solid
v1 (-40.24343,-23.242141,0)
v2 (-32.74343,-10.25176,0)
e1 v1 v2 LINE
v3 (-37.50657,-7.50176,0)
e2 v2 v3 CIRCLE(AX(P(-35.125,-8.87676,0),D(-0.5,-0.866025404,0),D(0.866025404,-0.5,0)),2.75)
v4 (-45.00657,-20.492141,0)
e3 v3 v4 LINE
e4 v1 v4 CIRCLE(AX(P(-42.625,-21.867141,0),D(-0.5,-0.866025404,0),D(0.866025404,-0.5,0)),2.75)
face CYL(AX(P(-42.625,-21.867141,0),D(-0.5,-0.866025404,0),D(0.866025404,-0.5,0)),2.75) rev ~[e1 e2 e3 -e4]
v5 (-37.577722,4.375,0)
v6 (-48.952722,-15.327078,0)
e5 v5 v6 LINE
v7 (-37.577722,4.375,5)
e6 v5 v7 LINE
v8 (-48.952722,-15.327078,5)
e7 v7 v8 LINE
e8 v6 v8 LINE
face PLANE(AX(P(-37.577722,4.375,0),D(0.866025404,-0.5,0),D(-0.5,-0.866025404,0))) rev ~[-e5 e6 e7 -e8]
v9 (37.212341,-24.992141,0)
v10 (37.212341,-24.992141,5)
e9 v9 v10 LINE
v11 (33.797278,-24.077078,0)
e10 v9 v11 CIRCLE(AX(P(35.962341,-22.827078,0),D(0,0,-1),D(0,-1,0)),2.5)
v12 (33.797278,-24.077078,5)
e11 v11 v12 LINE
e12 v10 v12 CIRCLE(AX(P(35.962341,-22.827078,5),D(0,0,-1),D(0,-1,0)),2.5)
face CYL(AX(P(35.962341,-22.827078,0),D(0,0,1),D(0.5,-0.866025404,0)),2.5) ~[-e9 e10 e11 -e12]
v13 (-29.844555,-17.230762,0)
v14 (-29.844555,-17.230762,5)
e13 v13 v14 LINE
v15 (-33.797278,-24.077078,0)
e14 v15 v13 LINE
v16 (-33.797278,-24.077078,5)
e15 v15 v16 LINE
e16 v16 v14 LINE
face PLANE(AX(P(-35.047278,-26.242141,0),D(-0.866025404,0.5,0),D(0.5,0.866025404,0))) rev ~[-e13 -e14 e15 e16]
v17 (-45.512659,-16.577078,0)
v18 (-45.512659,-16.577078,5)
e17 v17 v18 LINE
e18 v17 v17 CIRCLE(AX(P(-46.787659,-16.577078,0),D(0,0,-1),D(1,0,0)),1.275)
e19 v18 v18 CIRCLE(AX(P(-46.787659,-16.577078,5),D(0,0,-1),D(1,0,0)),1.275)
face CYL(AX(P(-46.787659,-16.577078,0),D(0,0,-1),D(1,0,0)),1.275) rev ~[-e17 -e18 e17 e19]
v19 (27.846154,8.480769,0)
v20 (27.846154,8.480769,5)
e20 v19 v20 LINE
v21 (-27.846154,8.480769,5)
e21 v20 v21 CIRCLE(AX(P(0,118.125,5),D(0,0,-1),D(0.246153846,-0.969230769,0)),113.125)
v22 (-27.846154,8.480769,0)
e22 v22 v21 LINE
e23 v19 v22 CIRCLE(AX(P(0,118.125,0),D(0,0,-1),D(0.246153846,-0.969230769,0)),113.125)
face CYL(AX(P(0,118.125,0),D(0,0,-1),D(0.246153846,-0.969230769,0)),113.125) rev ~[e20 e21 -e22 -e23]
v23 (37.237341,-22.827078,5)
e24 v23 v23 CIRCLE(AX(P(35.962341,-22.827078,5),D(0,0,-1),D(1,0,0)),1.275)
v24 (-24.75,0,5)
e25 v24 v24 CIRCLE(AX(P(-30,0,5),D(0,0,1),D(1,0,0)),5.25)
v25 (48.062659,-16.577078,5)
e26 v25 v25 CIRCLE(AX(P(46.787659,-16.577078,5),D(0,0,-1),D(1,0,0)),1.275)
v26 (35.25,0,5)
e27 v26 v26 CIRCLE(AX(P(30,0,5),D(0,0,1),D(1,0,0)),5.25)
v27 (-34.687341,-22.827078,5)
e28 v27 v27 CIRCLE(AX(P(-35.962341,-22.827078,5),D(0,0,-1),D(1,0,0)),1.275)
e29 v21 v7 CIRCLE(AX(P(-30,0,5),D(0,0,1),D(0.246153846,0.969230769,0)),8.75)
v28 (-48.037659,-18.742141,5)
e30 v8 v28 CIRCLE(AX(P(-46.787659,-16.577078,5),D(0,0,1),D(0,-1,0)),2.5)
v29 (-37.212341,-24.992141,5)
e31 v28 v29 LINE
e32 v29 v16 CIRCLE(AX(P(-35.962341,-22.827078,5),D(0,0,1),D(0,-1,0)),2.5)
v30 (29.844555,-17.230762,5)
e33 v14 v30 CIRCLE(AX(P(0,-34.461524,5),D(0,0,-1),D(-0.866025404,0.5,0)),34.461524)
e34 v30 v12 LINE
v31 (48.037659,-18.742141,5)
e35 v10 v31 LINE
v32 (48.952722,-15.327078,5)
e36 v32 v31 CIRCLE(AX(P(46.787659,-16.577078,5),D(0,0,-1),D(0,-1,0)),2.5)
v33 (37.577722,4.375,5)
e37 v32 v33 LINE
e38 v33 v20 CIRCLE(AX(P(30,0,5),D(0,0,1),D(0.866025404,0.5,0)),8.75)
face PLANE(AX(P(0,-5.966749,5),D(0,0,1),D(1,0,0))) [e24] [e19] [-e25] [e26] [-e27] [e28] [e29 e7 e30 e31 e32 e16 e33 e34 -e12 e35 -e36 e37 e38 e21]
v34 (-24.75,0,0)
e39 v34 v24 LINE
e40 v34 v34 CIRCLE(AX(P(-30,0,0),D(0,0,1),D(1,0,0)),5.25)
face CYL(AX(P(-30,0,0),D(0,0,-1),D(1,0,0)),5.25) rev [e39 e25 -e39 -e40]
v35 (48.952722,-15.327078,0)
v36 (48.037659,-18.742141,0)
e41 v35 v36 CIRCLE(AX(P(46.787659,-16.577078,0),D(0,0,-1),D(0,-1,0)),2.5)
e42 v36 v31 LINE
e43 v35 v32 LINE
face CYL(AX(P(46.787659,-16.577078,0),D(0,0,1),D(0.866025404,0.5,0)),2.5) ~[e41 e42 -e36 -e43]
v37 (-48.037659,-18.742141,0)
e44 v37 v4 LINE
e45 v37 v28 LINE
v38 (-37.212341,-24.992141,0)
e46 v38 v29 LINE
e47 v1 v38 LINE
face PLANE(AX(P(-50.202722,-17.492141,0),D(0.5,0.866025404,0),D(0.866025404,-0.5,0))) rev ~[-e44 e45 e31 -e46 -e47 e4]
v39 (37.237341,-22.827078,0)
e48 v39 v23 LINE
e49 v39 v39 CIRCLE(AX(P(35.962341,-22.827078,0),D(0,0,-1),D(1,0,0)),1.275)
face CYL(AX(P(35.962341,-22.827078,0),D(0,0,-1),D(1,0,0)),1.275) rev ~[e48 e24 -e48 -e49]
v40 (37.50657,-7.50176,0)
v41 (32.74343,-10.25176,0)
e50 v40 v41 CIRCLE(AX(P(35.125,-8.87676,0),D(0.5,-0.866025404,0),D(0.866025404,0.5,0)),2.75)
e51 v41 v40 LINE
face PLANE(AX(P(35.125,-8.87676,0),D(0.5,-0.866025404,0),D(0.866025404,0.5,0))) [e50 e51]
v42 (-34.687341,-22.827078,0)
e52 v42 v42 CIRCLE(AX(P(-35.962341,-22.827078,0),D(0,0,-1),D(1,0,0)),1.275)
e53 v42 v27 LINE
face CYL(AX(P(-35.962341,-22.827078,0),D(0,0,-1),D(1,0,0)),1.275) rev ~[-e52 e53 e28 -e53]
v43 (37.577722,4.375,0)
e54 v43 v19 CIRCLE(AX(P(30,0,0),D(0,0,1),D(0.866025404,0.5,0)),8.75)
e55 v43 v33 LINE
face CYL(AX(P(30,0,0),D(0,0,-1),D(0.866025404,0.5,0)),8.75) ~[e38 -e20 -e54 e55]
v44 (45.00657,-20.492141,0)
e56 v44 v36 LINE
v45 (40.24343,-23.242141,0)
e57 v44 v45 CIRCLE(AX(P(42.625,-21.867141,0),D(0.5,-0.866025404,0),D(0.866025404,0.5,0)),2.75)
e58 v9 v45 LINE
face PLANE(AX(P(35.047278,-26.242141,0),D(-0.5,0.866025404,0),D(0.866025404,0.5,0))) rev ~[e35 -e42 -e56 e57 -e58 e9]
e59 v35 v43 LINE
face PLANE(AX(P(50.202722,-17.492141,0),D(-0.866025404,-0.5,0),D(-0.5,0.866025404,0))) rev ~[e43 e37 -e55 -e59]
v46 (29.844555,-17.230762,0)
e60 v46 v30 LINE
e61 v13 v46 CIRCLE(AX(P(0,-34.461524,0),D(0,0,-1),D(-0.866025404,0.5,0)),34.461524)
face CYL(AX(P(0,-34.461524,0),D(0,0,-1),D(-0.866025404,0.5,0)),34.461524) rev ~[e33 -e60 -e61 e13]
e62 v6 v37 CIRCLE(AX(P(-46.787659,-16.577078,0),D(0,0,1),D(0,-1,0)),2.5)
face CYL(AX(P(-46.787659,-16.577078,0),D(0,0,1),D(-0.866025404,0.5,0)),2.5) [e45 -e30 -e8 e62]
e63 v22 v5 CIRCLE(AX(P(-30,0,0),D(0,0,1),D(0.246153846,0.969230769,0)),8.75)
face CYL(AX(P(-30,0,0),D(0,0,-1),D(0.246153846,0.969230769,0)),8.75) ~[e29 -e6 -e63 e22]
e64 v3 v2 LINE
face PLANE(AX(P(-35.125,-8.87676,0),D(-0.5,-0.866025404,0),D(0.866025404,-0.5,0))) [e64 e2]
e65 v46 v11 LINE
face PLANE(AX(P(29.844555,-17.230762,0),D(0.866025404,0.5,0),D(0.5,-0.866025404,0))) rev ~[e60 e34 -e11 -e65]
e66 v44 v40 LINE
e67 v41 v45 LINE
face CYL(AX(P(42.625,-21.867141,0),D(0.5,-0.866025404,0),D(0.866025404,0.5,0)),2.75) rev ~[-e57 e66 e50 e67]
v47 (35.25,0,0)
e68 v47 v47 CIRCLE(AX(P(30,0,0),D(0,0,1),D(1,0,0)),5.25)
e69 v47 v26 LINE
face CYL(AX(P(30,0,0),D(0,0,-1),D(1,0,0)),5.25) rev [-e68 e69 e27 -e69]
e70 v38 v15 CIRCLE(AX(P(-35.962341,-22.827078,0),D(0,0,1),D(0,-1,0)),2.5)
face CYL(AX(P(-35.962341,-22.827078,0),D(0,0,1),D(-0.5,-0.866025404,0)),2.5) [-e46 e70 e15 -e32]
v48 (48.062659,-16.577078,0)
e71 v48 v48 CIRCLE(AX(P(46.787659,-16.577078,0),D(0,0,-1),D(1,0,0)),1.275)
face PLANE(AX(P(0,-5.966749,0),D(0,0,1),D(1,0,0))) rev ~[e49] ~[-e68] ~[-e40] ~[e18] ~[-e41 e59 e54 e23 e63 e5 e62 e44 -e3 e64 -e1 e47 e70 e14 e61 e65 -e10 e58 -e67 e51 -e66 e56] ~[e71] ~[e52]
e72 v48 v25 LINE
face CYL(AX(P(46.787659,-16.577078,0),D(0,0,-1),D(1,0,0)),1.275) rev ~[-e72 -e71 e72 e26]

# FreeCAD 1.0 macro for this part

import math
import FreeCAD as App
import Part
import Sketcher

V = App.Vector
Q = App.Units.Quantity


def edges_at(feature, points):
    """Names of the edges that pass closest to the given points."""
    edges = feature.Shape.Edges
    near = lambda p: min(range(len(edges)), key=lambda i: edges[i].distToShape(Part.Vertex(*p))[0])
    return sorted({f"Edge{near(p) + 1}" for p in points})

doc = App.newDocument("Part")
body = doc.addObject("PartDesign::Body", "Body")

sketch1 = body.newObject("Sketcher::SketchObject", "Sketch")
sketch1.AttachmentSupport = (doc.getObject("XY_Plane"), [""])
sketch1.MapMode = "FlatFace"
sketch1.addGeometry([
    Part.ArcOfCircle(Part.Circle(V(0, 118.125, 0), V(0, 0, 1), 113.125), math.radians(-104.250033), math.radians(-75.749967)),
    Part.ArcOfCircle(Part.Circle(V(-30, 0, 0), V(0, 0, 1), 8.75), math.radians(75.749967), math.radians(150)),
    Part.LineSegment(V(-37.577722, 4.375, 0), V(-50.202722, -17.492141, 0)),
    Part.LineSegment(V(-50.202722, -17.492141, 0), V(-35.047278, -26.242141, 0)),
    Part.LineSegment(V(-35.047278, -26.242141, 0), V(-29.844555, -17.230762, 0)),
    Part.ArcOfCircle(Part.Circle(V(0, -34.461524, 0), V(0, 0, 1), 34.461524), math.radians(30), math.radians(150)),
    Part.LineSegment(V(29.844555, -17.230762, 0), V(35.047278, -26.242141, 0)),
    Part.LineSegment(V(35.047278, -26.242141, 0), V(50.202722, -17.492141, 0)),
    Part.LineSegment(V(50.202722, -17.492141, 0), V(37.577722, 4.375, 0)),
    Part.ArcOfCircle(Part.Circle(V(30, 0, 0), V(0, 0, 1), 8.75), math.radians(30), math.radians(104.250033)),
    Part.Circle(V(-30, 0, 0), V(0, 0, 1), 5.25),
    Part.Circle(V(30, 0, 0), V(0, 0, 1), 5.25),
], False)
sketch1.addConstraint([
    Sketcher.Constraint("Tangent", 0, 1, 1, 1),
    Sketcher.Constraint("Tangent", 1, 2, 2, 1),
    Sketcher.Constraint("Coincident", 2, 2, 3, 1),
    Sketcher.Constraint("Coincident", 3, 2, 4, 1),
    Sketcher.Constraint("Tangent", 4, 2, 5, 2),
    Sketcher.Constraint("Tangent", 5, 1, 6, 1),
    Sketcher.Constraint("Coincident", 6, 2, 7, 1),
    Sketcher.Constraint("Coincident", 7, 2, 8, 1),
    Sketcher.Constraint("Tangent", 8, 2, 9, 1),
    Sketcher.Constraint("Tangent", 9, 2, 0, 2),
    Sketcher.Constraint("Coincident", 10, 3, 1, 3),
    Sketcher.Constraint("Coincident", 11, 3, 9, 3),
    Sketcher.Constraint("Equal", 1, 9),
    Sketcher.Constraint("Equal", 10, 11),
    Sketcher.Constraint("Symmetric", 1, 3, 9, 3, -1, 1),
    Sketcher.Constraint("Symmetric", 4, 2, 5, 1, -2),
    Sketcher.Constraint("Symmetric", 2, 2, 7, 2, -2),
    Sketcher.Constraint("PointOnObject", 0, 3, -2),
    Sketcher.Constraint("Perpendicular", 2, 3),
    Sketcher.Constraint("Perpendicular", 3, 4),
    Sketcher.Constraint("Perpendicular", 6, 7),
    Sketcher.Constraint("Diameter", 10, Q("10.5 mm")),
    Sketcher.Constraint("Angle", 2, Q("-120 deg")),
    Sketcher.Constraint("Radius", 1, Q("8.75 mm")),
    Sketcher.Constraint("DistanceX", 1, 3, -1, 1, Q("30 mm")),
    Sketcher.Constraint("Radius", 0, Q("113.125 mm")),
    Sketcher.Constraint("Distance", 3, Q("17.5 mm")),
    Sketcher.Constraint("Distance", 2, Q("25.25 mm")),
    Sketcher.Constraint("Radius", 5, Q("34.461524 mm")),
])
pad1 = body.newObject("PartDesign::Pad", "Pad")
pad1.Profile = sketch1
pad1.Length = 5

sketch2 = body.newObject("Sketcher::SketchObject", "Sketch001")
sketch2.Placement = App.Placement(V(-20.125, -34.857523, 0), App.Rotation(V(0.866025404, -0.5, 0), V(0, 0, 1), V(-0.5, -0.866025404, 0), "ZXY"))
sketch2.addGeometry(Part.Circle(V(-25.980762, 0, 0), V(0, 0, 1), 2.75), False)
sketch2.addConstraint([
    Sketcher.Constraint("PointOnObject", 0, 3, -1),
    Sketcher.Constraint("Diameter", 0, Q("5.5 mm")),
    Sketcher.Constraint("DistanceX", 0, 3, -1, 1, Q("25.980762 mm")),
])
pocket1 = body.newObject("PartDesign::Pocket", "Pocket")
pocket1.Profile = sketch2
pocket1.Length = 15

sketch3 = body.newObject("Sketcher::SketchObject", "Sketch002")
sketch3.Placement = App.Placement(V(20.125, -34.857523, 0), App.Rotation(V(0.866025404, 0.5, 0), V(0, 0, 1), V(0.5, -0.866025404, 0), "ZXY"))
sketch3.addGeometry(Part.Circle(V(25.980762, 0, 0), V(0, 0, 1), 2.75), False)
sketch3.addConstraint([
    Sketcher.Constraint("PointOnObject", 0, 3, -1),
    Sketcher.Constraint("Diameter", 0, Q("5.5 mm")),
    Sketcher.Constraint("DistanceX", -1, 1, 0, 3, Q("25.980762 mm")),
])
pocket2 = body.newObject("PartDesign::Pocket", "Pocket001")
pocket2.Profile = sketch3
pocket2.Length = 15

sketch4 = body.newObject("Sketcher::SketchObject", "Sketch003")
sketch4.AttachmentSupport = (doc.getObject("XY_Plane"), [""])
sketch4.MapMode = "FlatFace"
sketch4.addGeometry([
    Part.Circle(V(-46.787659, -16.577078, 0), V(0, 0, 1), 1.275),
    Part.Circle(V(-35.962341, -22.827078, 0), V(0, 0, 1), 1.275),
    Part.Circle(V(35.962341, -22.827078, 0), V(0, 0, 1), 1.275),
    Part.Circle(V(46.787659, -16.577078, 0), V(0, 0, 1), 1.275),
], False)
sketch4.addConstraint([
    Sketcher.Constraint("Equal", 0, 1),
    Sketcher.Constraint("Equal", 1, 2),
    Sketcher.Constraint("Equal", 2, 3),
    Sketcher.Constraint("Symmetric", 1, 3, 2, 3, -2),
    Sketcher.Constraint("Symmetric", 0, 3, 3, 3, -2),
    Sketcher.Constraint("Diameter", 0, Q("2.55 mm")),
    Sketcher.Constraint("DistanceY", 1, 3, 0, 3, Q("6.25 mm")),
    Sketcher.Constraint("DistanceX", 0, 3, 2, 3, Q("82.75 mm")),
    Sketcher.Constraint("DistanceX", 0, 3, -1, 1, Q("46.787659 mm")),
    Sketcher.Constraint("DistanceY", 0, 3, -1, 1, Q("16.577078 mm")),
])
pocket3 = body.newObject("PartDesign::Pocket", "Pocket002")
pocket3.Profile = sketch4
pocket3.Type = "ThroughAll"
pocket3.Reversed = True
doc.recompute()

fillet = body.newObject("PartDesign::Fillet", "Fillet")
fillet.Base = (pocket3, edges_at(pocket3, [
    (-50.203, -17.492, 2.5),
    (-35.047, -26.242, 2.5),
    (35.047, -26.242, 2.5),
    (50.203, -17.492, 2.5),
]))
fillet.Radius = 2.5

doc.recompute()
